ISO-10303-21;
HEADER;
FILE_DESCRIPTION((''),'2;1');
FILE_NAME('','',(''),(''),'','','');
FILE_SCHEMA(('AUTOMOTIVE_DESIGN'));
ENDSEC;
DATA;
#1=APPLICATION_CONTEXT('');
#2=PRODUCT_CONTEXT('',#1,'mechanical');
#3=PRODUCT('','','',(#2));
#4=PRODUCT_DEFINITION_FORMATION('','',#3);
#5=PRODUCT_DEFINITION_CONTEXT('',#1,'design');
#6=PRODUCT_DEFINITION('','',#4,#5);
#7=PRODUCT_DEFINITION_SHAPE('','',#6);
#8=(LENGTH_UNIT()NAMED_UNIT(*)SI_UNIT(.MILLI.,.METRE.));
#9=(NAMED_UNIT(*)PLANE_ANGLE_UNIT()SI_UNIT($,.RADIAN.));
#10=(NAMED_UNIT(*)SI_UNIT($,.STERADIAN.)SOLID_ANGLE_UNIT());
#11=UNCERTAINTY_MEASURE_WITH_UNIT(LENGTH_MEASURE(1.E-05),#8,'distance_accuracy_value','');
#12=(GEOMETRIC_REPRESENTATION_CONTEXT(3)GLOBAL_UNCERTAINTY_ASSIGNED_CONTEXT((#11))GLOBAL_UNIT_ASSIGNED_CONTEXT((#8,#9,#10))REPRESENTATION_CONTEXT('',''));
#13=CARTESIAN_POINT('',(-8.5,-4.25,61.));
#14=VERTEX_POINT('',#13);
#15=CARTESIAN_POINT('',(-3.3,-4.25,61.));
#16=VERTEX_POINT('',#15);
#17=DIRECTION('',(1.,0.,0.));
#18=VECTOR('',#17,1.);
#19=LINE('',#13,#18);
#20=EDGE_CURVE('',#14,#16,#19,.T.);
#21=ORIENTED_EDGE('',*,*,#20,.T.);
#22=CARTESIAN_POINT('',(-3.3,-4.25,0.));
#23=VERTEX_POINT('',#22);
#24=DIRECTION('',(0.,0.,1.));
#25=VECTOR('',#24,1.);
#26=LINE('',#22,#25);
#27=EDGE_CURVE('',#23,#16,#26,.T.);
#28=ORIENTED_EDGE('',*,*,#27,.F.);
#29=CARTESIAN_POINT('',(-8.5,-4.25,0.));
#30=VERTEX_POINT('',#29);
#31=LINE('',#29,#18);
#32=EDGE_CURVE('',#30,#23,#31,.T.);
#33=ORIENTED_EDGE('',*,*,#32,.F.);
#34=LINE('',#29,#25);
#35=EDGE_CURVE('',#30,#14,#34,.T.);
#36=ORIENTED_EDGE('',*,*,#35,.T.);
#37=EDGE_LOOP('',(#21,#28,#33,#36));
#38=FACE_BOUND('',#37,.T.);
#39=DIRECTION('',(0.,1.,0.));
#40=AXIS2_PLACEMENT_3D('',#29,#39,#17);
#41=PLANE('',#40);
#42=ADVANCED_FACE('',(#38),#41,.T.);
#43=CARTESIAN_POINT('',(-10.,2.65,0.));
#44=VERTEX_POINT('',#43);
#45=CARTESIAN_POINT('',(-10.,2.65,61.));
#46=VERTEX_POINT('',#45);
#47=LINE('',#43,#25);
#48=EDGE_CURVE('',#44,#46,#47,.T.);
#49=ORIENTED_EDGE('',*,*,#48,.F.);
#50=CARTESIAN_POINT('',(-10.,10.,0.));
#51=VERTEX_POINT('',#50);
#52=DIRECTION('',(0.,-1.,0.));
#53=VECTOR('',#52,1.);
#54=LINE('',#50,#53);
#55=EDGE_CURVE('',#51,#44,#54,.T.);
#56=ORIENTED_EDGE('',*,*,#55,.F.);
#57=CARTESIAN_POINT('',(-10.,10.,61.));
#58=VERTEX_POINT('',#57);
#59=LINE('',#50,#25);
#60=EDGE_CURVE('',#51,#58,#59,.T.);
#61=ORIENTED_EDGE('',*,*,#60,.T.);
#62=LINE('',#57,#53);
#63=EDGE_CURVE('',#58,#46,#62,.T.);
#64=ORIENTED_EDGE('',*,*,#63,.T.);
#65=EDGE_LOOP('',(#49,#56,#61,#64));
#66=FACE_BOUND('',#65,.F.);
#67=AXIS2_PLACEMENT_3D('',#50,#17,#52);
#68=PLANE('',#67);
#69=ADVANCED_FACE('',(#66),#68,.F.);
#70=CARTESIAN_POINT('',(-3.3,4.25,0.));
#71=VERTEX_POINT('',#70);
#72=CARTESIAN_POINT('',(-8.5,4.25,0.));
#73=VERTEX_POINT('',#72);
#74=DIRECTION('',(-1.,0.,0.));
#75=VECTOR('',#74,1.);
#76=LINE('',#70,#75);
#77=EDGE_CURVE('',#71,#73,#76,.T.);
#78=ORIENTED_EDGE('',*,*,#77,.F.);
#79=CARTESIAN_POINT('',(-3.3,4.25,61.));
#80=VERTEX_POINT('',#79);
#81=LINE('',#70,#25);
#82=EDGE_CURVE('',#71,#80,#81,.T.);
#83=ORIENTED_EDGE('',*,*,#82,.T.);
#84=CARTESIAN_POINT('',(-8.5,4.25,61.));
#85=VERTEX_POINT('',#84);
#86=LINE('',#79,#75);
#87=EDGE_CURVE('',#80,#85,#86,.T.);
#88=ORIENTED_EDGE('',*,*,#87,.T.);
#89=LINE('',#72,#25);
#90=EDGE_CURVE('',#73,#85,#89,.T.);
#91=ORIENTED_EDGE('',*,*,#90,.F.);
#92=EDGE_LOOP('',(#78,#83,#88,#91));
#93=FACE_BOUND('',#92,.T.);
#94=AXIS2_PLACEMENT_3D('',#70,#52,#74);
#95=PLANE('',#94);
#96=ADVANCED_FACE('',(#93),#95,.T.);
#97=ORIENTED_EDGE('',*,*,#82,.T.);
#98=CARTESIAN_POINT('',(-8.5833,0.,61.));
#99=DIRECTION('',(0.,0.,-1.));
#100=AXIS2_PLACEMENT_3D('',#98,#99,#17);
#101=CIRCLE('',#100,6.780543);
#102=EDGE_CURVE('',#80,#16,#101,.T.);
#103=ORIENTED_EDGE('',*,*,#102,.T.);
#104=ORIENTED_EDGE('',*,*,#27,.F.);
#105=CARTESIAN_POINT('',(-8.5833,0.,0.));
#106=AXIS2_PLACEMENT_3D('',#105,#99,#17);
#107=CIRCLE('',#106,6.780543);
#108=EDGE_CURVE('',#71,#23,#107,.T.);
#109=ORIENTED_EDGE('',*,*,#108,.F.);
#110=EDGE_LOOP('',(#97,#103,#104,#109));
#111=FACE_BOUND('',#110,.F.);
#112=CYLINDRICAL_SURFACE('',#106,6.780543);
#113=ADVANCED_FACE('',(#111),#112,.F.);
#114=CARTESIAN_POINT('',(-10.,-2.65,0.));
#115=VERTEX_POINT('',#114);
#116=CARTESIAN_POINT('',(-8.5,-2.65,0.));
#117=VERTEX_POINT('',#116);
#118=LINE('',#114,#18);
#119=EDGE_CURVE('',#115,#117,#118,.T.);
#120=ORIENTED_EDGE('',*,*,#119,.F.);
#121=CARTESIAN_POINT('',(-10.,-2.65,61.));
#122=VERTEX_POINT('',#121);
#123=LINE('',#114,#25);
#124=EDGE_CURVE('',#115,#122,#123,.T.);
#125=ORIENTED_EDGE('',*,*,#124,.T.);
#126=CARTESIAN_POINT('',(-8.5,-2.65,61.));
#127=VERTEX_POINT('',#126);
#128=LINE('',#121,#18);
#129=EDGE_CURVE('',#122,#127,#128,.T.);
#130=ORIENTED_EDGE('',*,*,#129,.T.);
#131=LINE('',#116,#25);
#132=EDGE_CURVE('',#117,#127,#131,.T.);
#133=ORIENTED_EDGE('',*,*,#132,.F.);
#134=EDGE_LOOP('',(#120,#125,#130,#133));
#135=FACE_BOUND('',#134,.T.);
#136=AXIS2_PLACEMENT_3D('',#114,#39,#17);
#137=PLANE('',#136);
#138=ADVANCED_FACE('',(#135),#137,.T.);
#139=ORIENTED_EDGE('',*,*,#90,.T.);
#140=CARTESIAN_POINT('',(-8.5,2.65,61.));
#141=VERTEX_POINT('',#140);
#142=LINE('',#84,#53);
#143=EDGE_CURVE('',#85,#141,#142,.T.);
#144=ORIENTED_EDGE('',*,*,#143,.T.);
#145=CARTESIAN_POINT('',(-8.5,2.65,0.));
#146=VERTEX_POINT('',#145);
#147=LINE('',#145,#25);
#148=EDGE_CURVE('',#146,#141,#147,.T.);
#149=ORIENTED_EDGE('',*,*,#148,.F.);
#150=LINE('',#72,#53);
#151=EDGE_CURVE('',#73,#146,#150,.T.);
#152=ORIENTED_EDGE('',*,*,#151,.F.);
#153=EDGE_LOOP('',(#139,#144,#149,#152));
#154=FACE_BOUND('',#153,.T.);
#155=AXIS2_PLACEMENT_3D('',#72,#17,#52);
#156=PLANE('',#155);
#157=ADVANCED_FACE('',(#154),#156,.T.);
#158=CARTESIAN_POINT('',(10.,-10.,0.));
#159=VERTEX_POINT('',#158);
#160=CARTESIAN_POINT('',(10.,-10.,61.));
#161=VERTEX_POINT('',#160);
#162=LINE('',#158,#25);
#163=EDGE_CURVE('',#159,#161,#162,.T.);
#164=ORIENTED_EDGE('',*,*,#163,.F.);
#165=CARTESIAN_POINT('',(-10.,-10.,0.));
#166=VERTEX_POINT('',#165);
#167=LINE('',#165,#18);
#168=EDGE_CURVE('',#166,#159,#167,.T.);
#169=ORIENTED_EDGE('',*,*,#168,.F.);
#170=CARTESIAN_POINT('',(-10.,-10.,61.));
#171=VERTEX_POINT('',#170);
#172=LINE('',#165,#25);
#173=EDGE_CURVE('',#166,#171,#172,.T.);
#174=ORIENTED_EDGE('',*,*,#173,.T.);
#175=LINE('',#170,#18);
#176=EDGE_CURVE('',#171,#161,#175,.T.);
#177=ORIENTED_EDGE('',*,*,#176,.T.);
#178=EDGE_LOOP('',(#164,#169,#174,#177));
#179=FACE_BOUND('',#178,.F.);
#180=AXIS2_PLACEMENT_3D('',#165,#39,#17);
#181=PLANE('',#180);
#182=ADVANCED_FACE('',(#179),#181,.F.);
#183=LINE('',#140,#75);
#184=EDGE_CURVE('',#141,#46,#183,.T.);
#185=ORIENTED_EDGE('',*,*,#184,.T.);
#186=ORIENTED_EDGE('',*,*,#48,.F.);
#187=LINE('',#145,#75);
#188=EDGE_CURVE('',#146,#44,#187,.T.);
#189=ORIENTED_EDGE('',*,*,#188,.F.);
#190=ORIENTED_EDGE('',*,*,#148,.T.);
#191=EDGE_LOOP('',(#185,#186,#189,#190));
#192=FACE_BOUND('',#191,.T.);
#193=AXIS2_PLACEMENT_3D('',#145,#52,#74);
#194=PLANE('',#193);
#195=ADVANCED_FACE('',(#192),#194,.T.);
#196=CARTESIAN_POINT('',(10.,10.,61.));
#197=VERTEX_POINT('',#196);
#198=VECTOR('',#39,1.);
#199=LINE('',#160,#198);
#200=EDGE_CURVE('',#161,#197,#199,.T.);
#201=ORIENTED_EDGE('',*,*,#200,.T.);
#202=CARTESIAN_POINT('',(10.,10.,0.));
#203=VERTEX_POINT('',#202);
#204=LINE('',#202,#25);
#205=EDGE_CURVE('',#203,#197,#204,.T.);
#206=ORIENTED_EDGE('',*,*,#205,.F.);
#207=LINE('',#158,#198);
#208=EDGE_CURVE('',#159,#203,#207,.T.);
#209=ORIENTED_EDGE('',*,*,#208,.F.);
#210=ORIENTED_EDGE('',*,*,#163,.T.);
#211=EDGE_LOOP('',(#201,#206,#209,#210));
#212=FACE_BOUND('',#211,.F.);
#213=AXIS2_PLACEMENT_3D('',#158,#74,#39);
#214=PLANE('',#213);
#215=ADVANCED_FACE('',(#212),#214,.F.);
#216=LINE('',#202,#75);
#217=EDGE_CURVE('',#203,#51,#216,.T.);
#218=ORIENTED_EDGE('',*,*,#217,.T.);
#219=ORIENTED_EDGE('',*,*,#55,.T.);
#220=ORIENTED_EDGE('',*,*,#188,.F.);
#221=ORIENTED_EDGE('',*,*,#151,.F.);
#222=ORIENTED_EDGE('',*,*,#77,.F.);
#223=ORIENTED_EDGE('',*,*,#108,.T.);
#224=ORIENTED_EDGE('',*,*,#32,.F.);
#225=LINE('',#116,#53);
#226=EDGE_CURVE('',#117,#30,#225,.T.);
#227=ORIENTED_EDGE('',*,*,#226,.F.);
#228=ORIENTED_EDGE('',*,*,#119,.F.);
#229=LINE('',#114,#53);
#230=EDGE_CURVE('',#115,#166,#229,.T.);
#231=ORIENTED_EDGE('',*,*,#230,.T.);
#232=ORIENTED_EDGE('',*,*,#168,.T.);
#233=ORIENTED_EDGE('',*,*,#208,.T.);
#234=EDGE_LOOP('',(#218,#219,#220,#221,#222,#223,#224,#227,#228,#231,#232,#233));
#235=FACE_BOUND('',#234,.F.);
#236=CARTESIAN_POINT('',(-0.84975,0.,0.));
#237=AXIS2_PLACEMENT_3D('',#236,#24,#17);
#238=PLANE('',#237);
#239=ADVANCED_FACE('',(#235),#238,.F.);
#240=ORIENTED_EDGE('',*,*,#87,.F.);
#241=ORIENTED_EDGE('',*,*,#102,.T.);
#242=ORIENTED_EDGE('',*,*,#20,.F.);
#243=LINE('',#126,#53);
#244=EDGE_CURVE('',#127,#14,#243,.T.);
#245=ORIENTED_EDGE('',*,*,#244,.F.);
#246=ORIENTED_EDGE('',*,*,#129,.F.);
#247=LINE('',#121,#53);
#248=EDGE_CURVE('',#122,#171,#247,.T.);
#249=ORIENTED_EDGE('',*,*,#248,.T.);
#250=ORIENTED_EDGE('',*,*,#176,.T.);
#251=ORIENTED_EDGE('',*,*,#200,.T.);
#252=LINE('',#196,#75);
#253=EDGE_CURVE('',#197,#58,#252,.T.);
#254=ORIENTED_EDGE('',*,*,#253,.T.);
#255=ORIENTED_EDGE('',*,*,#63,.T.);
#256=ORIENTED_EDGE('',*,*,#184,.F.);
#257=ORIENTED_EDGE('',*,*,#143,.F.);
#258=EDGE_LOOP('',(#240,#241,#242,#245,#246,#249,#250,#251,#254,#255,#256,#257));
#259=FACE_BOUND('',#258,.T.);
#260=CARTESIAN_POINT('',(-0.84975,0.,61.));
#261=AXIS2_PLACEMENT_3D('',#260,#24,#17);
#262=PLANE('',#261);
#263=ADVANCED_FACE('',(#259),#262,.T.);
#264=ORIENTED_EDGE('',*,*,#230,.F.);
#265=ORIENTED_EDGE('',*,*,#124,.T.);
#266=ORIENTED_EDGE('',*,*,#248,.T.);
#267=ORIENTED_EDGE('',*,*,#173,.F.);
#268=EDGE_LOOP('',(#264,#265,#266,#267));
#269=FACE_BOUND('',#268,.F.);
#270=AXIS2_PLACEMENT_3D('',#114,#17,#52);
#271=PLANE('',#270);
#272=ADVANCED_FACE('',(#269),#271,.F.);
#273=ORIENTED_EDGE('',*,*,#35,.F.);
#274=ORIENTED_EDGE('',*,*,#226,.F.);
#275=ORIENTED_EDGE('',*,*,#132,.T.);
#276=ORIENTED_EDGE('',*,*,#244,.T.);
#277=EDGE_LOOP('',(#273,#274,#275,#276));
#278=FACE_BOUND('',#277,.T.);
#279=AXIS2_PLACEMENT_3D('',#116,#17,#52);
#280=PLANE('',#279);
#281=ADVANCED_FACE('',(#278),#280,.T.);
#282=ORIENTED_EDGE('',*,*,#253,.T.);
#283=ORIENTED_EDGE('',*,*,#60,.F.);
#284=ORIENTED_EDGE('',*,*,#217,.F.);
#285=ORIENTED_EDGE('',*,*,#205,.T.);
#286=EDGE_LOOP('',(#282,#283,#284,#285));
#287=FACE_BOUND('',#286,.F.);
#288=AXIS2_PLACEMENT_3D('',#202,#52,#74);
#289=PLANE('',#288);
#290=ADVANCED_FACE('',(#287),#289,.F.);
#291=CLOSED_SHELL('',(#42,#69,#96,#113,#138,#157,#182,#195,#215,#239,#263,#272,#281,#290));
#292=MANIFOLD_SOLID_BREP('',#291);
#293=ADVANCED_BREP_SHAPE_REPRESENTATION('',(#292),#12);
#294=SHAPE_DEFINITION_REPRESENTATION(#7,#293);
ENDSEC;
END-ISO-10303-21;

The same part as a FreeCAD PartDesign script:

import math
import FreeCAD as App
import Part
import Sketcher

V = App.Vector

doc = App.newDocument("Part")
body = doc.addObject("PartDesign::Body", "Body")

sketch1 = body.newObject("Sketcher::SketchObject", "Sketch")
sketch1.AttachmentSupport = (doc.getObject("XY_Plane"), [""])
sketch1.MapMode = "FlatFace"
sketch1.addGeometry([
    Part.LineSegment(V(-10, -2.6, 0), V(-10, -10, 0)),
    Part.LineSegment(V(-10, -10, 0), V(10, -10, 0)),
    Part.LineSegment(V(10, -10, 0), V(10, 10, 0)),
    Part.LineSegment(V(10, 10, 0), V(-10, 10, 0)),
    Part.LineSegment(V(-10, 10, 0), V(-10, 2.6, 0)),
    Part.LineSegment(V(-10, 2.6, 0), V(-8.5, 2.6, 0)),
    Part.LineSegment(V(-8.5, 2.6, 0), V(-8.5, 4.2, 0)),
    Part.LineSegment(V(-8.5, 4.2, 0), V(-3.3, 4.2, 0)),
    Part.ArcOfCircle(Part.Circle(V(-8.6, 0, 0), V(0, 0, 1), 6.8), math.radians(-39), math.radians(39)),
    Part.LineSegment(V(-3.3, -4.2, 0), V(-8.5, -4.2, 0)),
    Part.LineSegment(V(-8.5, -4.2, 0), V(-8.5, -2.6, 0)),
    Part.LineSegment(V(-8.5, -2.6, 0), V(-10, -2.6, 0)),
], False)
sketch1.addConstraint([
    Sketcher.Constraint("Coincident", 0, 2, 1, 1),
    Sketcher.Constraint("Coincident", 1, 2, 2, 1),
    Sketcher.Constraint("Coincident", 2, 2, 3, 1),
    Sketcher.Constraint("Coincident", 3, 2, 4, 1),
    Sketcher.Constraint("Coincident", 4, 2, 5, 1),
    Sketcher.Constraint("Coincident", 5, 2, 6, 1),
    Sketcher.Constraint("Coincident", 6, 2, 7, 1),
    Sketcher.Constraint("Coincident", 7, 2, 8, 2),
    Sketcher.Constraint("Coincident", 8, 1, 9, 1),
    Sketcher.Constraint("Coincident", 9, 2, 10, 1),
    Sketcher.Constraint("Coincident", 10, 2, 11, 1),
    Sketcher.Constraint("Coincident", 11, 2, 0, 1),
    Sketcher.Constraint("Vertical", 0),
    Sketcher.Constraint("Horizontal", 1),
    Sketcher.Constraint("Vertical", 2),
    Sketcher.Constraint("Horizontal", 3),
    Sketcher.Constraint("Vertical", 4),
    Sketcher.Constraint("Horizontal", 5),
    Sketcher.Constraint("Vertical", 6),
    Sketcher.Constraint("Horizontal", 7),
    Sketcher.Constraint("Horizontal", 9),
    Sketcher.Constraint("Vertical", 10),
    Sketcher.Constraint("Horizontal", 11),
    Sketcher.Constraint("Symmetric", 0, 2, 2, 2, -1, 1),
    Sketcher.Constraint("Symmetric", 7, 2, 8, 1, -1),
    Sketcher.Constraint("Symmetric", 5, 2, 10, 2, -1),
    Sketcher.Constraint("Vertical", 0, 2, 3, 2),
    Sketcher.Constraint("Equal", 3, 2),
    Sketcher.Constraint("DistanceX", 1, 1, 1, 2, 20.0),
    Sketcher.Constraint("DistanceX", 5, 1, 5, 2, 1.5),
    Sketcher.Constraint("DistanceX", 7, 1, 7, 2, 5.2),
    Sketcher.Constraint("DistanceY", 6, 1, 6, 2, 1.6),
    Sketcher.Constraint("DistanceY", 0, 2, 0, 1, 7.35),
    Sketcher.Constraint("Radius", 8, 6.7805),
])
pad1 = body.newObject("PartDesign::Pad", "Pad")
pad1.Profile = sketch1
pad1.Length = 61

doc.recompute()
